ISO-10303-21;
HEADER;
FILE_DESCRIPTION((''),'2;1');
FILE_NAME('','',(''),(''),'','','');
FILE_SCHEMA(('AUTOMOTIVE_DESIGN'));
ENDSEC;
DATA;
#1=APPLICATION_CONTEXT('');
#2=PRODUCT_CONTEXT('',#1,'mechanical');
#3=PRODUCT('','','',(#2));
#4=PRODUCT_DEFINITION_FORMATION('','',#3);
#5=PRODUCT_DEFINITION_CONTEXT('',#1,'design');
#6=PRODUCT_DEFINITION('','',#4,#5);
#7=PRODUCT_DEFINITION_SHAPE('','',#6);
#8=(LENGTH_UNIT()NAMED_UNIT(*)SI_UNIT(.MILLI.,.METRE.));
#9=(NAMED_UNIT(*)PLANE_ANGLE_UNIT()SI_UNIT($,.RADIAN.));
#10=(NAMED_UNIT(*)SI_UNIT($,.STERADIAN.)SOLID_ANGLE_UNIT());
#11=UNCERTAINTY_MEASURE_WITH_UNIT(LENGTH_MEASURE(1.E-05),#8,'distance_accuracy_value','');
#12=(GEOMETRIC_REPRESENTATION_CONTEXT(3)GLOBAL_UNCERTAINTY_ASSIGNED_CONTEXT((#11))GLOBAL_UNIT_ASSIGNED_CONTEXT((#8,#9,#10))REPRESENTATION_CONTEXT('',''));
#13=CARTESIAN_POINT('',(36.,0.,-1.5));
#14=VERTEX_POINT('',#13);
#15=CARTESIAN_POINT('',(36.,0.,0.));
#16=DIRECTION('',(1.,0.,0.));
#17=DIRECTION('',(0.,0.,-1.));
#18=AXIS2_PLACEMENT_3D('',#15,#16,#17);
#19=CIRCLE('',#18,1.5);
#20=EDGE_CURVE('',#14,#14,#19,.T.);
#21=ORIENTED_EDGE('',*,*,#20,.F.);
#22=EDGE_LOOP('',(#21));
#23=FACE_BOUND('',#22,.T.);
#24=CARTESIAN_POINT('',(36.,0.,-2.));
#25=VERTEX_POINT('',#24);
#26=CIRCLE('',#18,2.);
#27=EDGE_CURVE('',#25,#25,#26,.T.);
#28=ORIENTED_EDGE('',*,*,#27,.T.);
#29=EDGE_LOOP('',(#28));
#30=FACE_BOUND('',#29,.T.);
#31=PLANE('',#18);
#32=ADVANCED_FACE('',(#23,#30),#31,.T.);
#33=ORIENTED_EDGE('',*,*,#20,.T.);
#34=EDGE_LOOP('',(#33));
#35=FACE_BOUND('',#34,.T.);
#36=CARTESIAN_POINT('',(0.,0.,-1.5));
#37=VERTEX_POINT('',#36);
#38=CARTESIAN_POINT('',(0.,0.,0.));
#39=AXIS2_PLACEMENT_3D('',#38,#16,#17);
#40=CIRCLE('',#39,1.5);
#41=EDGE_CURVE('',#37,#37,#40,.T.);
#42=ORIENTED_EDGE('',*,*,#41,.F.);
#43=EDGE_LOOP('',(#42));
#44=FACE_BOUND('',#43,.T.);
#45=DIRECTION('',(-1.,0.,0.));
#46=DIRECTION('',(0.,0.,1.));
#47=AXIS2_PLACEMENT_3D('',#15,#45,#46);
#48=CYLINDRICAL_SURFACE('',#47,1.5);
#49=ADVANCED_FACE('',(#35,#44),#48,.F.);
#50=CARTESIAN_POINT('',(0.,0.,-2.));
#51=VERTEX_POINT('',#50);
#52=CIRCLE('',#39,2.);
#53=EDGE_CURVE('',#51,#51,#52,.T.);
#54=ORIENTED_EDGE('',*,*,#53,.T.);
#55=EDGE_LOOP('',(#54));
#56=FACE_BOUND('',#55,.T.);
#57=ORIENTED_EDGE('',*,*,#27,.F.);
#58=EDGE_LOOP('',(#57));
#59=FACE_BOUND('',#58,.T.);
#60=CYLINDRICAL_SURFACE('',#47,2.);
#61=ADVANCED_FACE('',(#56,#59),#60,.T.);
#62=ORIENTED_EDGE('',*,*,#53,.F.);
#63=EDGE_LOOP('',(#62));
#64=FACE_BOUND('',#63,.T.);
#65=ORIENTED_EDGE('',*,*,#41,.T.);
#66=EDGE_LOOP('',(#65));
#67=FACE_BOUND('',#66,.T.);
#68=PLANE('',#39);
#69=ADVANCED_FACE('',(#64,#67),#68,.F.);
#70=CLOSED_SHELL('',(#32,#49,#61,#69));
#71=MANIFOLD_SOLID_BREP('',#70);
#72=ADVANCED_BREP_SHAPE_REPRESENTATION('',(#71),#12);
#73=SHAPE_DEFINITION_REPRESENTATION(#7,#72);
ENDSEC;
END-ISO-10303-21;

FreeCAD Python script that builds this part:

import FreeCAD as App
import Part
import Sketcher
from FreeCAD import Vector
Q = App.Units.Quantity

doc = App.newDocument("Part")
body = doc.addObject("PartDesign::Body", "Body")

# Sketch on YZ plane
sketch1 = doc.addObject("Sketcher::SketchObject", "Sketch")
body.addObject(sketch1)
sketch1.AttachmentSupport = (doc.YZ_Plane, [""])
sketch1.MapMode = "FlatFace"
sketch1.addGeometry([
    Part.Circle(Vector(0, 0, 0), Vector(0, 0, 1), 2),
    Part.Circle(Vector(0, 0, 0), Vector(0, 0, 1), 1.5),
], False)
sketch1.addConstraint([
    Sketcher.Constraint("Coincident", 0, 3, -1, 1),
    Sketcher.Constraint("Coincident", 1, 3, -1, 1),
    Sketcher.Constraint("Diameter", 0, Q("4 mm")),
    Sketcher.Constraint("Diameter", 1, Q("3 mm")),
])
pad1 = doc.addObject("PartDesign::Pad", "Pad")
body.addObject(pad1)
pad1.Profile = sketch1
pad1.Length = 36

doc.recompute()
